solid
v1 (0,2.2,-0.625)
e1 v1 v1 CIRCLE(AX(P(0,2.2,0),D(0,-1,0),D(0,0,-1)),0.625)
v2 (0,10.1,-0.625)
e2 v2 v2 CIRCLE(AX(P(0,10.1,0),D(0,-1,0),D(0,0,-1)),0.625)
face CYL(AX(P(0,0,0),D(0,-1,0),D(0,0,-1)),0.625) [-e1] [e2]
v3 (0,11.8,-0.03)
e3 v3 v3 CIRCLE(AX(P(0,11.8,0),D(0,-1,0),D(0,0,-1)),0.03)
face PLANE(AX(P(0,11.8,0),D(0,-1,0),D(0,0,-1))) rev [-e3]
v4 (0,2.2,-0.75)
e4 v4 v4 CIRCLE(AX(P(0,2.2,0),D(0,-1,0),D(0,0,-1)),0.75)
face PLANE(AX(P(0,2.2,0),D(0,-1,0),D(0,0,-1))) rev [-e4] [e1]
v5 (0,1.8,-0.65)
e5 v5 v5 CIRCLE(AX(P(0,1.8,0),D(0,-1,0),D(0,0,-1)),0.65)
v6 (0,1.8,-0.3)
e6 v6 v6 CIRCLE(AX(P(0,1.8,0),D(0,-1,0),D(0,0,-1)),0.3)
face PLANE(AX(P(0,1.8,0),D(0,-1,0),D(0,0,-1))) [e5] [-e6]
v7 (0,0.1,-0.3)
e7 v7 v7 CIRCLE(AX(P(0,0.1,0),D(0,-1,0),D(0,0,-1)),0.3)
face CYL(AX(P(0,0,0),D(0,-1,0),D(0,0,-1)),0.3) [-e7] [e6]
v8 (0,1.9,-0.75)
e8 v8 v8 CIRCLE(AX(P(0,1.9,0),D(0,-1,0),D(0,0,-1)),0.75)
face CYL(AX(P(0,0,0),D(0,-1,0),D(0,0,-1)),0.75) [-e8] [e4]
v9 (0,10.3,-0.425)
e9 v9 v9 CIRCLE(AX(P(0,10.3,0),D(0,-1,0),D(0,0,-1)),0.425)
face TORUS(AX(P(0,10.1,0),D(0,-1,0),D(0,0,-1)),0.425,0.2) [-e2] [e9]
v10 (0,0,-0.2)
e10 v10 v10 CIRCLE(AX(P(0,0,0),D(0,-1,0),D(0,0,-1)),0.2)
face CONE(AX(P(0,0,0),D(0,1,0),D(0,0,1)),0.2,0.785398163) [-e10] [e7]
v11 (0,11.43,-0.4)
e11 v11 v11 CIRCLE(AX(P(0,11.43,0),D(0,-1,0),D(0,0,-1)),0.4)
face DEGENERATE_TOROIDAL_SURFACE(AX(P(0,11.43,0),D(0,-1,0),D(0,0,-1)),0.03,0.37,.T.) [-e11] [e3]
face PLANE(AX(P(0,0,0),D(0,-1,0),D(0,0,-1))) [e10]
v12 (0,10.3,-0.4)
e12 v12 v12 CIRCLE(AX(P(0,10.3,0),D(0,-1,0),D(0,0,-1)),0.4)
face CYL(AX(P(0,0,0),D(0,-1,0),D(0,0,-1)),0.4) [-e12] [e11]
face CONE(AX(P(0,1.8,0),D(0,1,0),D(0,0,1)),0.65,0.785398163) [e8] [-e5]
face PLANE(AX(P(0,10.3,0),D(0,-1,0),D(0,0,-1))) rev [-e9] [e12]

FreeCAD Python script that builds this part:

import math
import FreeCAD as App
import Part
import Sketcher
from FreeCAD import Vector
Q = App.Units.Quantity

doc = App.newDocument("Part")
body = doc.addObject("PartDesign::Body", "Body")

# Sketch on YZ plane
sketch1 = body.newObject("Sketcher::SketchObject", "Sketch")
sketch1.AttachmentSupport = (doc.getObject("YZ_Plane"), [""])
sketch1.MapMode = "FlatFace"
sketch1.addGeometry([
    Part.LineSegment(Vector(1.8, 0.3, 0), Vector(0.1, 0.3, 0)),  # 0
    Part.LineSegment(Vector(0.1, 0.3, 0), Vector(0, 0.2, 0)),  # 1
    Part.LineSegment(Vector(0, 0.2, 0), Vector(0, 0, 0)),  # 2
    Part.LineSegment(Vector(0, 0, 0), Vector(11.8, 0, 0)),  # 3
    Part.LineSegment(Vector(11.8, 0, 0), Vector(11.8, 0.03, 0)),  # 4
    Part.ArcOfCircle(Part.Circle(Vector(11.43, 0.03, 0), Vector(0, 0, 1), 0.37), math.radians(0), math.radians(90)),  # 5
    Part.LineSegment(Vector(11.43, 0.4, 0), Vector(10.3, 0.4, 0)),  # 6
    Part.LineSegment(Vector(10.3, 0.4, 0), Vector(10.3, 0.425, 0)),  # 7
    Part.ArcOfCircle(Part.Circle(Vector(10.1, 0.425, 0), Vector(0, 0, 1), 0.2), math.radians(0), math.radians(90)),  # 8
    Part.LineSegment(Vector(10.1, 0.625, 0), Vector(2.2, 0.625, 0)),  # 9
    Part.LineSegment(Vector(2.2, 0.625, 0), Vector(2.2, 0.75, 0)),  # 10
    Part.LineSegment(Vector(2.2, 0.75, 0), Vector(1.9, 0.75, 0)),  # 11
    Part.LineSegment(Vector(1.9, 0.75, 0), Vector(1.8, 0.65, 0)),  # 12
    Part.LineSegment(Vector(1.8, 0.65, 0), Vector(1.8, 0.3, 0)),  # 13
], False)
sketch1.addConstraint([
    Sketcher.Constraint("Coincident", 0, 2, 1, 1),
    Sketcher.Constraint("Coincident", 1, 2, 2, 1),
    Sketcher.Constraint("Coincident", 2, 2, 3, 1),
    Sketcher.Constraint("Coincident", 3, 2, 4, 1),
    Sketcher.Constraint("Tangent", 4, 2, 5, 1),
    Sketcher.Constraint("Tangent", 5, 2, 6, 1),
    Sketcher.Constraint("Coincident", 6, 2, 7, 1),
    Sketcher.Constraint("Tangent", 7, 2, 8, 1),
    Sketcher.Constraint("Tangent", 8, 2, 9, 1),
    Sketcher.Constraint("Coincident", 9, 2, 10, 1),
    Sketcher.Constraint("Coincident", 10, 2, 11, 1),
    Sketcher.Constraint("Coincident", 11, 2, 12, 1),
    Sketcher.Constraint("Coincident", 12, 2, 13, 1),
    Sketcher.Constraint("Coincident", 13, 2, 0, 1),
    Sketcher.Constraint("Horizontal", 0),
    Sketcher.Constraint("Vertical", 2),
    Sketcher.Constraint("Horizontal", 3),
    Sketcher.Constraint("Vertical", 4),
    Sketcher.Constraint("Horizontal", 6),
    Sketcher.Constraint("Vertical", 7),
    Sketcher.Constraint("Horizontal", 9),
    Sketcher.Constraint("Vertical", 10),
    Sketcher.Constraint("Horizontal", 11),
    Sketcher.Constraint("Vertical", 13),
    Sketcher.Constraint("Coincident", 2, 2, -1, 1),
    Sketcher.Constraint("Parallel", 1, 12),
    Sketcher.Constraint("Equal", 1, 12),
    Sketcher.Constraint("Radius", 8, Q("0.2 mm")),
    Sketcher.Constraint("Angle", 1, Q("-135 deg")),
    Sketcher.Constraint("Radius", 5, Q("0.37 mm")),
    Sketcher.Constraint("DistanceX", 0, 2, 0, 1, Q("1.7 mm")),
    Sketcher.Constraint("DistanceX", 3, 1, 3, 2, Q("11.8 mm")),
    Sketcher.Constraint("DistanceX", 9, 2, 9, 1, Q("7.9 mm")),
    Sketcher.Constraint("DistanceX", 11, 2, 11, 1, Q("0.3 mm")),
    Sketcher.Constraint("DistanceY", 2, 2, 2, 1, Q("0.2 mm")),
    Sketcher.Constraint("DistanceX", 0, 2, 8, 3, Q("10 mm")),
    Sketcher.Constraint("DistanceY", 4, 1, 4, 2, Q("0.03 mm")),
    Sketcher.Constraint("DistanceY", 13, 2, 13, 1, Q("0.35 mm")),
    Sketcher.Constraint("DistanceY", 7, 1, 7, 2, Q("0.025 mm")),
])
revolution = body.newObject("PartDesign::Revolution", "Revolution")
revolution.Profile = sketch1
revolution.ReferenceAxis = (sketch1, ["H_Axis"])
revolution.Angle = 360

doc.recompute()
